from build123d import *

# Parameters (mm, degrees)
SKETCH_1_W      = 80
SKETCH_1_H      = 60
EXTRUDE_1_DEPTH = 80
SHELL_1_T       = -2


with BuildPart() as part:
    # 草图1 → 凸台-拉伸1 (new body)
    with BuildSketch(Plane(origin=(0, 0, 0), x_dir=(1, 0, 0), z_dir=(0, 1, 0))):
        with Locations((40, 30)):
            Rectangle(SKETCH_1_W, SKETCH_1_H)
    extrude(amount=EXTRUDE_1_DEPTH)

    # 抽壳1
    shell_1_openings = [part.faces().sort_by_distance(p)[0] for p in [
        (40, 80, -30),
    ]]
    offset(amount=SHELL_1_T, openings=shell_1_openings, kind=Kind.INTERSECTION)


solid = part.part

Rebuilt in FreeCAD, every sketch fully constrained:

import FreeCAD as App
import Part
import Sketcher
from FreeCAD import Vector
Q = App.Units.Quantity


def faces_at(feature, points):
    """Names of the faces that lie closest to the given points."""
    faces = feature.Shape.Faces
    near = lambda p: min(range(len(faces)), key=lambda i: faces[i].distToShape(Part.Vertex(*p))[0])
    return sorted({f"Face{near(p) + 1}" for p in points})


def add_polygon(sketch, points):
    """Adds a closed chain of lines whose ends are joined by coincident constraints."""
    first, n = sketch.GeometryCount, len(points)
    for a, b in zip(points, points[1:] + points[:1]):
        sketch.addGeometry(Part.LineSegment(App.Vector(*a, 0), App.Vector(*b, 0)), False)
    for i in range(n):
        sketch.addConstraint(Sketcher.Constraint("Coincident", first + i, 2, first + (i + 1) % n, 1))

doc = App.newDocument("Part")
body = doc.addObject("PartDesign::Body", "Body")

sketch1 = doc.addObject("Sketcher::SketchObject", "Sketch")
body.addObject(sketch1)
sketch1.AttachmentSupport = (doc.XZ_Plane, [""])
sketch1.MapMode = "FlatFace"
add_polygon(sketch1, [(0, -60), (0, 0), (80, 0), (80, -60)])
sketch1.addConstraint(Sketcher.Constraint("Vertical", 0))
sketch1.addConstraint(Sketcher.Constraint("Horizontal", 1))
sketch1.addConstraint(Sketcher.Constraint("Vertical", 2))
sketch1.addConstraint(Sketcher.Constraint("Horizontal", 3))
sketch1.addConstraint(Sketcher.Constraint("Coincident", 0, 2, -1, 1))
sketch1.addConstraint(Sketcher.Constraint("DistanceX", 1, 1, 1, 2, Q("80 mm")))
sketch1.addConstraint(Sketcher.Constraint("DistanceY", 0, 1, 0, 2, Q("60 mm")))
pad1 = doc.addObject("PartDesign::Pad", "Pad")
body.addObject(pad1)
pad1.Profile = sketch1
pad1.Length = 80
pad1.Reversed = True
doc.recompute()

thickness = doc.addObject("PartDesign::Thickness", "Thickness")
body.addObject(thickness)
thickness.Base = (pad1, faces_at(pad1, [(40, 80, -30)]))
thickness.Value = 2
thickness.Reversed = True
thickness.Join = "Intersection"

doc.recompute()
